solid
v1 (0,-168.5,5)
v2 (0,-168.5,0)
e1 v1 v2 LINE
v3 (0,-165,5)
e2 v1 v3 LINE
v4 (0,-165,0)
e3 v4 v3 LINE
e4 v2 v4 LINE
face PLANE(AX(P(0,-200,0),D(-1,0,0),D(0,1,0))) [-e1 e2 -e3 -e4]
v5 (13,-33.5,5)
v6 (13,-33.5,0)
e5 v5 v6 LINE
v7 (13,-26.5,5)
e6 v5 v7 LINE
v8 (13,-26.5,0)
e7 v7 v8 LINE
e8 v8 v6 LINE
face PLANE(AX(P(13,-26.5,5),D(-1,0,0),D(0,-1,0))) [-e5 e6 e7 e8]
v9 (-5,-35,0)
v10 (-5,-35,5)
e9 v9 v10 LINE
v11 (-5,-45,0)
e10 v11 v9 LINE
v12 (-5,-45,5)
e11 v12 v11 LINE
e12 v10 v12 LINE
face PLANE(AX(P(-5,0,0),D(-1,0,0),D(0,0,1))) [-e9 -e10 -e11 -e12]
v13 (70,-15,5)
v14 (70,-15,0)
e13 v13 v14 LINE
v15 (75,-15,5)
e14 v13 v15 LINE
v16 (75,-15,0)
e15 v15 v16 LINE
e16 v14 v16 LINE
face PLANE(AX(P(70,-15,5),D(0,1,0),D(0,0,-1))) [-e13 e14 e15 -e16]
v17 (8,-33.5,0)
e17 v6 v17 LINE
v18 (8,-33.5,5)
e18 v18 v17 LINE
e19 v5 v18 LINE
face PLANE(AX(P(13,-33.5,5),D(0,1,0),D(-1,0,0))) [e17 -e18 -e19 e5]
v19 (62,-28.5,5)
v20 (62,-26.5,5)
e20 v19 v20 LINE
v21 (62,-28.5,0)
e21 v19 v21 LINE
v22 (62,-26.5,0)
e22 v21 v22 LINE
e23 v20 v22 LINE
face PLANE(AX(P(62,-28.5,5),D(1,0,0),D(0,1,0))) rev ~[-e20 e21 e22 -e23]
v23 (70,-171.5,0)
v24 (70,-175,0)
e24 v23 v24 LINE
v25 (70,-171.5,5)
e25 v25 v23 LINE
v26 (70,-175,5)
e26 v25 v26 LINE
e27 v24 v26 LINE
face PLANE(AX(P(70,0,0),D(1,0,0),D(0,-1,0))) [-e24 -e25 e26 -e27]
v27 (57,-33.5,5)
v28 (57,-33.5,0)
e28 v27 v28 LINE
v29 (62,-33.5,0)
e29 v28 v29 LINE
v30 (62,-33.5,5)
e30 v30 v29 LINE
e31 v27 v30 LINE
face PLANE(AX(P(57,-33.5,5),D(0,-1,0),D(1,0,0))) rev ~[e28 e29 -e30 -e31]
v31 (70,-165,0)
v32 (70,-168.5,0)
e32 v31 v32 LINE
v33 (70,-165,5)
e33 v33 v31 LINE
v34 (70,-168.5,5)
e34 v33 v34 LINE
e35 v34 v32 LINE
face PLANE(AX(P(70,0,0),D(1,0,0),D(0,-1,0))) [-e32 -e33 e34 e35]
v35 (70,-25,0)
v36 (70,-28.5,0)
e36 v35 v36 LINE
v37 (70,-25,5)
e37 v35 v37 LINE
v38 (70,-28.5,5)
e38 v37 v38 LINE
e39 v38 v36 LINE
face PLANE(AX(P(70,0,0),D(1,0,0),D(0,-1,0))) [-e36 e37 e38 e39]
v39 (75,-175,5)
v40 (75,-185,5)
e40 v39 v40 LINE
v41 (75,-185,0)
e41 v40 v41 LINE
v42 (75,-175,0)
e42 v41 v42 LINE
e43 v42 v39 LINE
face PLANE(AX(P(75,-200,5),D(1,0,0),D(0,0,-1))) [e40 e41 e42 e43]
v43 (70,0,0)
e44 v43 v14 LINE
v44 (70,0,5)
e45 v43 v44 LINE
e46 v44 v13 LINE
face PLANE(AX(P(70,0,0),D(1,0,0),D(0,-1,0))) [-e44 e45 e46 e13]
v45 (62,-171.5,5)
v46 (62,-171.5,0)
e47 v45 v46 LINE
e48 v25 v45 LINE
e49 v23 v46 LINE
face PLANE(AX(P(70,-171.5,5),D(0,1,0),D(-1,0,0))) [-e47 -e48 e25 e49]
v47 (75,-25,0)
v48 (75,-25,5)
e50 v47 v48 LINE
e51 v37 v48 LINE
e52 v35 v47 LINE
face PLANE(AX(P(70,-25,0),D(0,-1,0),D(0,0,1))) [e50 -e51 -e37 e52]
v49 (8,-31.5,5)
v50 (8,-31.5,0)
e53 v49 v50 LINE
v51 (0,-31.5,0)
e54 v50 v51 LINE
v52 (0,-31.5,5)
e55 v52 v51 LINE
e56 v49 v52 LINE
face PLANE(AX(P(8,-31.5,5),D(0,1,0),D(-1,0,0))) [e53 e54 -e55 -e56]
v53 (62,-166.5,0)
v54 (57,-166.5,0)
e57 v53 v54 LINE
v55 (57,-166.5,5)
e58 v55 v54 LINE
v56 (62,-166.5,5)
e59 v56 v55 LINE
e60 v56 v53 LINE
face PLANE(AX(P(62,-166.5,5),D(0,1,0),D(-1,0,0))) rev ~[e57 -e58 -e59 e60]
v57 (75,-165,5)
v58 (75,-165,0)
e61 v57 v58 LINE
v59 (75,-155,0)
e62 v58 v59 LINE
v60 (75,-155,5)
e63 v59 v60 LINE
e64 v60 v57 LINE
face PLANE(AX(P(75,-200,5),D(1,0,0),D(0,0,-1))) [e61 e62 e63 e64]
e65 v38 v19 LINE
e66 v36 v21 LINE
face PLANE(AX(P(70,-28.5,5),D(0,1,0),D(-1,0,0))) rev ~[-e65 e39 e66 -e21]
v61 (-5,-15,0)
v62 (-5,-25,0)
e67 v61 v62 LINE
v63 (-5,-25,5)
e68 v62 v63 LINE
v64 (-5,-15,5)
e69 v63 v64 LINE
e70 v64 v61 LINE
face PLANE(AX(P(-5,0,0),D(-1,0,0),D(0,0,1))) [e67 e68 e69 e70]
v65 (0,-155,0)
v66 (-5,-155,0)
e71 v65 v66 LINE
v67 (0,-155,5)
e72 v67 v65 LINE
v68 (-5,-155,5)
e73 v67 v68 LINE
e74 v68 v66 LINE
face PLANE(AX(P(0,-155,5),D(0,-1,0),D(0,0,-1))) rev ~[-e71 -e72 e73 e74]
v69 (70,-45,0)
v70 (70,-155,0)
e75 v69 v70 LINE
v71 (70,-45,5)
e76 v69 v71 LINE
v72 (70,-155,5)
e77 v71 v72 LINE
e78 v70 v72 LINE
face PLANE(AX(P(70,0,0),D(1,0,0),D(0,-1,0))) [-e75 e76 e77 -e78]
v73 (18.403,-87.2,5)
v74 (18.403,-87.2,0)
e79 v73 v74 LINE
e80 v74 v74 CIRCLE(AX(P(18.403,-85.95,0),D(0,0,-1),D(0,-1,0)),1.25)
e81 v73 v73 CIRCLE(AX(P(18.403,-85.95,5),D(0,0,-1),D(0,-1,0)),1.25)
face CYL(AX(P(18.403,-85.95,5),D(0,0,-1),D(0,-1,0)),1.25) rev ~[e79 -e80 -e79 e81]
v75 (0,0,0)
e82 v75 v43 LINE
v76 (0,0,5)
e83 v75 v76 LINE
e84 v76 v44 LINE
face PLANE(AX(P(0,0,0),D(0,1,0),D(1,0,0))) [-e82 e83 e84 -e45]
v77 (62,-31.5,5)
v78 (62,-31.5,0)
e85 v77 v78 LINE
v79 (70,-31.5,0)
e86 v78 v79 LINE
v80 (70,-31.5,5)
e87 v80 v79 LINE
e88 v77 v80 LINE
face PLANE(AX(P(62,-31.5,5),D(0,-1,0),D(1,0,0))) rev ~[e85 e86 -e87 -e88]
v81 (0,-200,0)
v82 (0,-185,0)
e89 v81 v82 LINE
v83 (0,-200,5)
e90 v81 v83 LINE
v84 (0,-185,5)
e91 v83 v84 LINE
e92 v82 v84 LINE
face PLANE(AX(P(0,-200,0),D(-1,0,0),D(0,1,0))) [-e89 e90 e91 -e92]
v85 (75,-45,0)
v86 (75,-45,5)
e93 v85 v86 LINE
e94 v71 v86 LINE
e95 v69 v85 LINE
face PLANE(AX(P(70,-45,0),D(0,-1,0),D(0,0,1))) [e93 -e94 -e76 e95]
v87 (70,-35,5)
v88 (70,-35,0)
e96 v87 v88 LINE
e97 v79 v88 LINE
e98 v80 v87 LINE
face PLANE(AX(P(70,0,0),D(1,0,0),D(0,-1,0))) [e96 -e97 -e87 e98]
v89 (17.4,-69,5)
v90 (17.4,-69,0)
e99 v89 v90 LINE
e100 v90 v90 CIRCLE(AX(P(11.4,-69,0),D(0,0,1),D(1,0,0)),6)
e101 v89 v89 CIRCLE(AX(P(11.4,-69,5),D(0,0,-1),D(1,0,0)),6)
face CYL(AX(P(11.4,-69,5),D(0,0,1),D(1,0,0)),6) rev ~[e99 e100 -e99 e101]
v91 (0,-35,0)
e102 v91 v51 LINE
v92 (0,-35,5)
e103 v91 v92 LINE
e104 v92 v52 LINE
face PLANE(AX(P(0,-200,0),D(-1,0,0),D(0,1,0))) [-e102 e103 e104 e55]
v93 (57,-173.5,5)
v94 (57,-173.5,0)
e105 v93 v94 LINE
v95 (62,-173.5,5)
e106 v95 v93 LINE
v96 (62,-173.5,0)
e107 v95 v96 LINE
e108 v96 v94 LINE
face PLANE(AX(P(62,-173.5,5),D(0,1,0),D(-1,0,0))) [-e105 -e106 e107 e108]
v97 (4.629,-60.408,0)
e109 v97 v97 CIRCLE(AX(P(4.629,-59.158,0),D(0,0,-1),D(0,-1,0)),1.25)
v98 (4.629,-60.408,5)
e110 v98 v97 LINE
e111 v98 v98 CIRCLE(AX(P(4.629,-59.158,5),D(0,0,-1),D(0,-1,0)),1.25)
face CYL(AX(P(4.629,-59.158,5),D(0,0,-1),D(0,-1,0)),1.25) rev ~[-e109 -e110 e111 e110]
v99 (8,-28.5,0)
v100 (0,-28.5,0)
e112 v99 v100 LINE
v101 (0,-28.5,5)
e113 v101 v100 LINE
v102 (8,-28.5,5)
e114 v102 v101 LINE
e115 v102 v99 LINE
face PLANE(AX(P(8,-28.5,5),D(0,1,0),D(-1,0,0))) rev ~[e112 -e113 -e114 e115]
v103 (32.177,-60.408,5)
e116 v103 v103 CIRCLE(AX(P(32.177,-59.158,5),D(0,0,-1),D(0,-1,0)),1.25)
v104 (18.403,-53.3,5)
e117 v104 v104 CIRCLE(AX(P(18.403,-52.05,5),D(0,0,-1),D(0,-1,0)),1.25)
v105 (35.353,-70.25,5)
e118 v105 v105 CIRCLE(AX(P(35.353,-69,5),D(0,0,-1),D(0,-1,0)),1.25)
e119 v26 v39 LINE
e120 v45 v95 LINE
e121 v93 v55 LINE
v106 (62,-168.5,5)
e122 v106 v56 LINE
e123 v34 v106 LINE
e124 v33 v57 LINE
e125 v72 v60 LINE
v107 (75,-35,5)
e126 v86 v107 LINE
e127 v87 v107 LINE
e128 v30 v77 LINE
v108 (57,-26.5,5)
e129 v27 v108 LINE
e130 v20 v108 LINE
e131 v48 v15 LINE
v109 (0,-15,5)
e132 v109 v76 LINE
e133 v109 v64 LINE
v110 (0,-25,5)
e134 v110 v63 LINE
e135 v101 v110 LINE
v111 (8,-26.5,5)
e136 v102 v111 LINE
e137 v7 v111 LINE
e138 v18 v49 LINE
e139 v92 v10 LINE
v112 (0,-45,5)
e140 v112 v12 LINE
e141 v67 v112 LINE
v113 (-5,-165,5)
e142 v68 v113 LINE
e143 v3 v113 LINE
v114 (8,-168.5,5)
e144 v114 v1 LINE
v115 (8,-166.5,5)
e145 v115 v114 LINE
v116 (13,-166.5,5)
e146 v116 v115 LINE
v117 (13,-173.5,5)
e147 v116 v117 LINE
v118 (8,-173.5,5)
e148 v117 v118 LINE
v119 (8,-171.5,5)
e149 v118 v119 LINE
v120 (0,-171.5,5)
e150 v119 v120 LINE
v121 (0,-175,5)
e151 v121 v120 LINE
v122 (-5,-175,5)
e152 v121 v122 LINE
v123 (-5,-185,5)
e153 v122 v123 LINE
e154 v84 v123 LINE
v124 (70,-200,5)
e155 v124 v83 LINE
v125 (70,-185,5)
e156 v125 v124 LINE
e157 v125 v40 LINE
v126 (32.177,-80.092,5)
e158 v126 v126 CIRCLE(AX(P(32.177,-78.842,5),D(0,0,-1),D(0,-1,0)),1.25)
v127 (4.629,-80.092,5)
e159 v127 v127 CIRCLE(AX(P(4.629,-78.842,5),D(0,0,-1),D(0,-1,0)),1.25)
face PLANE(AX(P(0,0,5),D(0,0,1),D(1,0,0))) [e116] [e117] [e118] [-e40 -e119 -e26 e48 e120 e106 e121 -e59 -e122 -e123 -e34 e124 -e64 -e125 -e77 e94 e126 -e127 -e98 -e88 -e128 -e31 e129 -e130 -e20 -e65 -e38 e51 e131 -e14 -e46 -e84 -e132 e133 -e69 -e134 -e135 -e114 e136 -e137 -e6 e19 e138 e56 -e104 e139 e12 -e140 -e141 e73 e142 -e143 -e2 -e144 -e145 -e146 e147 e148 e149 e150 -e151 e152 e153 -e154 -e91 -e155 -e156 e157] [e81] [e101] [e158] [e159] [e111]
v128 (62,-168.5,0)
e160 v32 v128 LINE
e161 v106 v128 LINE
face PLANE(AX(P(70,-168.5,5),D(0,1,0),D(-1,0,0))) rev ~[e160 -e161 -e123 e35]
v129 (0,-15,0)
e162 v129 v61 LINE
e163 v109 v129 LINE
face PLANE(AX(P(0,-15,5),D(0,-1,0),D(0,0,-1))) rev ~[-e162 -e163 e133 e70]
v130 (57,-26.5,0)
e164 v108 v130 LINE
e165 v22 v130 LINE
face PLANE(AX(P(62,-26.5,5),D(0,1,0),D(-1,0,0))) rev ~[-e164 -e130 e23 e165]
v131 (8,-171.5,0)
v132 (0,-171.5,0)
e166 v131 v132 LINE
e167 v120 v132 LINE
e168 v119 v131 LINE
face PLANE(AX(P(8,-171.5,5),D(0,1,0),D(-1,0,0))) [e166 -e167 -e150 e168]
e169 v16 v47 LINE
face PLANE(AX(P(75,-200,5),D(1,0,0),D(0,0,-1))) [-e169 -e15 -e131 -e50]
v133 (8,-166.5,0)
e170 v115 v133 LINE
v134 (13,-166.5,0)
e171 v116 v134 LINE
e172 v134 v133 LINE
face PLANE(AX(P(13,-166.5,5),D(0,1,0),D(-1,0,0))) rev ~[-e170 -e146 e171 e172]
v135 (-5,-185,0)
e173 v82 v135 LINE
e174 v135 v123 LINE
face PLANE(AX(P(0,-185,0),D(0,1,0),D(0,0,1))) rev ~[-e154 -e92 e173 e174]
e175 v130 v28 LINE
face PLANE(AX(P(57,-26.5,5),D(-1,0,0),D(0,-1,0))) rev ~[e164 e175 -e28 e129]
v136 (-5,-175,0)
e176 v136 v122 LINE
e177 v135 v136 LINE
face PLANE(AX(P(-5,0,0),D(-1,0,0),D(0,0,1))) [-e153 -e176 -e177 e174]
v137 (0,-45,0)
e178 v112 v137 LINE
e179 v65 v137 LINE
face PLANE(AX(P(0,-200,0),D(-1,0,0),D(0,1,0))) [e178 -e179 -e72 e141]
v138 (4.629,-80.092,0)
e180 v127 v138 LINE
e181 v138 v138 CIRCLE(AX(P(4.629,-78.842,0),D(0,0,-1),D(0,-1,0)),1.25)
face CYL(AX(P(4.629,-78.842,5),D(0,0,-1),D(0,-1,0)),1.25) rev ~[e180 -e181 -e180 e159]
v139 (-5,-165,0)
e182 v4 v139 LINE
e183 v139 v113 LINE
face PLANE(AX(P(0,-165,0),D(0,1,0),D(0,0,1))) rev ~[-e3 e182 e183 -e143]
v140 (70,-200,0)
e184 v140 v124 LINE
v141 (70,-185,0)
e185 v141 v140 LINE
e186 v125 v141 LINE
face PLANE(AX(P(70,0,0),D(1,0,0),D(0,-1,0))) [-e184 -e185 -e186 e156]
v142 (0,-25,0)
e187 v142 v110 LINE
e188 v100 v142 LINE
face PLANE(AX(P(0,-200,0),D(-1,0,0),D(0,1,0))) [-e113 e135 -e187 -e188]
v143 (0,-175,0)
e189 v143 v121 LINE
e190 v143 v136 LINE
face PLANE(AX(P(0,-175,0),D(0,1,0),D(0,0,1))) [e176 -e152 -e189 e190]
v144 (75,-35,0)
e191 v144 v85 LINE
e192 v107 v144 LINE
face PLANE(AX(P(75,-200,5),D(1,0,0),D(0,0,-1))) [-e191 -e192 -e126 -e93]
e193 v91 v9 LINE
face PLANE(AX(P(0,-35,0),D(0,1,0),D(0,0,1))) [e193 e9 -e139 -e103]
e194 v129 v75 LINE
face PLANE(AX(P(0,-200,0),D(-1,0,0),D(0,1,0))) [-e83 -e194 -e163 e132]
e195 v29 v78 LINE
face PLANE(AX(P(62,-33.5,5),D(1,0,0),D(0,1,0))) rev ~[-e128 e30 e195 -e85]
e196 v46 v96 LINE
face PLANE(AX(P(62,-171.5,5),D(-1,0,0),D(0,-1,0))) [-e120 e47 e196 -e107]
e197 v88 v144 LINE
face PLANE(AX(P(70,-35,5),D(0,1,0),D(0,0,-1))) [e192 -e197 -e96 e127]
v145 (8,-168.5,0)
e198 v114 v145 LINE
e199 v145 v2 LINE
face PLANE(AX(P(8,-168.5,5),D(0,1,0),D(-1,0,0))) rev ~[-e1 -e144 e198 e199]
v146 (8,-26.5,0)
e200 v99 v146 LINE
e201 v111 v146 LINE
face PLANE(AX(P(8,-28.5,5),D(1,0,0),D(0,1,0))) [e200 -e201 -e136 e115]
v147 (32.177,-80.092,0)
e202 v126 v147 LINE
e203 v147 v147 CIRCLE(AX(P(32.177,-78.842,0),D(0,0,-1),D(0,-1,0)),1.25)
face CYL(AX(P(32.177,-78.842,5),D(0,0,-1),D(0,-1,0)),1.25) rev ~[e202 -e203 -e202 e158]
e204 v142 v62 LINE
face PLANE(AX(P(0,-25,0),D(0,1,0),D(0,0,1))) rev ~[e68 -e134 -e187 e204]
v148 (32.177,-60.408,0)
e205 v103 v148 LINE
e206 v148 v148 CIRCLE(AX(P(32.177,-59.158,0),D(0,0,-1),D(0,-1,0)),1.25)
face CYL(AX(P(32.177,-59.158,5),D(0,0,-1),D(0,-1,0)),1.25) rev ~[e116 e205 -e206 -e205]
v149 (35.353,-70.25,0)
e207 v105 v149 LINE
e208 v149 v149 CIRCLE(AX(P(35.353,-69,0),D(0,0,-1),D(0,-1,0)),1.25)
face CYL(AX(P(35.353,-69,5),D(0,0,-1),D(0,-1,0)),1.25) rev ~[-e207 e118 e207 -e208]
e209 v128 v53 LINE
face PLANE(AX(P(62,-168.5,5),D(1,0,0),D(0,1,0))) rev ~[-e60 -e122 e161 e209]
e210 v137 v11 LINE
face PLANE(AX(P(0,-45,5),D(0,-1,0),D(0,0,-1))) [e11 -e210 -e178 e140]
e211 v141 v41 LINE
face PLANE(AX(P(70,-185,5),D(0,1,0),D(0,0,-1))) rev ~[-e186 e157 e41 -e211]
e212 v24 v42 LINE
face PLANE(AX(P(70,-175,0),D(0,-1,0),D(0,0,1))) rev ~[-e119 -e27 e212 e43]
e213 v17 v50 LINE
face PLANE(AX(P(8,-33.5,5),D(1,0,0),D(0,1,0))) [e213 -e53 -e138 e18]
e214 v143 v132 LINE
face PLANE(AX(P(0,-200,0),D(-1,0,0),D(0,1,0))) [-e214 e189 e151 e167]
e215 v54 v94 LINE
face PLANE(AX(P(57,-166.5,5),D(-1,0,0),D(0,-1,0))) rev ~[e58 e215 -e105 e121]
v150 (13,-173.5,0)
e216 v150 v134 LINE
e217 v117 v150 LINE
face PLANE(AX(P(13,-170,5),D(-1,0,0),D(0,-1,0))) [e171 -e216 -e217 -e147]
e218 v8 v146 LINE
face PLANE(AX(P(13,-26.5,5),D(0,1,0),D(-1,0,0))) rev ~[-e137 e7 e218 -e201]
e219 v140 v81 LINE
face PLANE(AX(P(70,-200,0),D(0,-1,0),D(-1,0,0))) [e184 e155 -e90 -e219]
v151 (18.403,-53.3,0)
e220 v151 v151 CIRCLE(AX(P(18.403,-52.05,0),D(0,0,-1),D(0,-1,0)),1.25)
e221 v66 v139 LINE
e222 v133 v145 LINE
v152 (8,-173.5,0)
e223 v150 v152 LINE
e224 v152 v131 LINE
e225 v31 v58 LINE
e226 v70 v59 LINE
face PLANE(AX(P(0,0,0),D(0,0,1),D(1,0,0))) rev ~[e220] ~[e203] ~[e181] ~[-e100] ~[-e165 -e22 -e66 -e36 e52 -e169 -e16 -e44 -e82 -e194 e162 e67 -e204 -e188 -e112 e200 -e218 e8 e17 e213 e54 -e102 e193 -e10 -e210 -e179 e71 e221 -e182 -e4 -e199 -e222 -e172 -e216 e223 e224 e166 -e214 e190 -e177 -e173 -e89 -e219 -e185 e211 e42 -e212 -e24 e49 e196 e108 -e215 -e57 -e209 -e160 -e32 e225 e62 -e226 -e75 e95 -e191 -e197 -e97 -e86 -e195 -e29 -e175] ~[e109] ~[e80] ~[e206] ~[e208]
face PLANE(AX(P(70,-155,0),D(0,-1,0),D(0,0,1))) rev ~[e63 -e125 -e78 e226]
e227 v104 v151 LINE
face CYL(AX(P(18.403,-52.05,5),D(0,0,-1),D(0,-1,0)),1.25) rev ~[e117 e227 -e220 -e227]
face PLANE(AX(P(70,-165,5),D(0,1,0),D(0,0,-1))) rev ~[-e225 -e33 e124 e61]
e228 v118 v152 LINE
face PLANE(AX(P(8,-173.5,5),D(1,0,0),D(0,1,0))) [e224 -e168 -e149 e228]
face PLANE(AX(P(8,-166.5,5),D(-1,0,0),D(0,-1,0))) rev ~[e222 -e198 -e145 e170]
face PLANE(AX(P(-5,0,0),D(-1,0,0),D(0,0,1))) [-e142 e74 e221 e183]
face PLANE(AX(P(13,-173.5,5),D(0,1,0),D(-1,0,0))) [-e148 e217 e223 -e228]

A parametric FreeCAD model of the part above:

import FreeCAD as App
import Part
import Sketcher
from FreeCAD import Vector

doc = App.newDocument("Part")
body = doc.addObject("PartDesign::Body", "Body")

# Sketch on XY plane
sketch1 = body.newObject("Sketcher::SketchObject", "Sketch")
sketch1.AttachmentSupport = (doc.getObject("XY_Plane"), [""])
sketch1.MapMode = "FlatFace"
sketch1.addGeometry([
    Part.LineSegment(Vector(70, 0, 0), Vector(0, 0, 0)),
    Part.LineSegment(Vector(0, 0, 0), Vector(0, -200, 0)),
    Part.LineSegment(Vector(0, -200, 0), Vector(70, -200, 0)),
    Part.LineSegment(Vector(70, -200, 0), Vector(70, 0, 0)),
], False)
sketch1.addConstraint([
    Sketcher.Constraint("Coincident", 0, 2, 1, 1),
    Sketcher.Constraint("Coincident", 1, 2, 2, 1),
    Sketcher.Constraint("Coincident", 2, 2, 3, 1),
    Sketcher.Constraint("Coincident", 3, 2, 0, 1),
    Sketcher.Constraint("Horizontal", 0),
    Sketcher.Constraint("Vertical", 1),
    Sketcher.Constraint("Horizontal", 2),
    Sketcher.Constraint("Vertical", 3),
    Sketcher.Constraint("Coincident", 0, 2, -1, 1),
    Sketcher.Constraint("DistanceX", 0, 2, 0, 1, 70.0),
    Sketcher.Constraint("DistanceY", 1, 2, 1, 1, 200.0),
])
pad1 = body.newObject("PartDesign::Pad", "Pad")
pad1.Profile = sketch1
pad1.Length = 5

# Sketch on XY plane
sketch2 = body.newObject("Sketcher::SketchObject", "Sketch001")
sketch2.AttachmentSupport = (doc.getObject("XY_Plane"), [""])
sketch2.MapMode = "FlatFace"
sketch2.AttachmentOffset = App.Placement(Vector(0, 0, 5), App.Rotation())
sketch2.addGeometry([
    Part.LineSegment(Vector(13, -170, 0), Vector(0, -170, 0)),  # 0
    Part.LineSegment(Vector(0, -170, 0), Vector(0, -171.5, 0)),  # 1
    Part.LineSegment(Vector(0, -171.5, 0), Vector(8, -171.5, 0)),  # 2
    Part.LineSegment(Vector(8, -171.5, 0), Vector(8, -173.5, 0)),  # 3
    Part.LineSegment(Vector(8, -173.5, 0), Vector(13, -173.5, 0)),  # 4
    Part.LineSegment(Vector(13, -173.5, 0), Vector(13, -170, 0)),  # 5
], False)
sketch2.addConstraint([
    Sketcher.Constraint("Coincident", 0, 2, 1, 1),
    Sketcher.Constraint("Coincident", 1, 2, 2, 1),
    Sketcher.Constraint("Coincident", 2, 2, 3, 1),
    Sketcher.Constraint("Coincident", 3, 2, 4, 1),
    Sketcher.Constraint("Coincident", 4, 2, 5, 1),
    Sketcher.Constraint("Coincident", 5, 2, 0, 1),
    Sketcher.Constraint("Horizontal", 0),
    Sketcher.Constraint("Vertical", 1),
    Sketcher.Constraint("Horizontal", 2),
    Sketcher.Constraint("Vertical", 3),
    Sketcher.Constraint("Horizontal", 4),
    Sketcher.Constraint("Vertical", 5),
    Sketcher.Constraint("PointOnObject", 0, 2, -2),
    Sketcher.Constraint("DistanceX", 2, 1, 2, 2, 8.0),
    Sketcher.Constraint("DistanceX", 4, 1, 4, 2, 5.0),
    Sketcher.Constraint("DistanceY", 3, 2, 3, 1, 2.0),
    Sketcher.Constraint("DistanceY", 1, 2, 1, 1, 1.5),
    Sketcher.Constraint("DistanceY", 0, 2, -1, 1, 170.0),
])
pocket1 = body.newObject("PartDesign::Pocket", "Pocket")
pocket1.Profile = sketch2
pocket1.Length = 5

# Sketch on XY plane
sketch3 = body.newObject("Sketcher::SketchObject", "Sketch002")
sketch3.AttachmentSupport = (doc.getObject("XY_Plane"), [""])
sketch3.MapMode = "FlatFace"
sketch3.AttachmentOffset = App.Placement(Vector(0, 0, 5), App.Rotation())
sketch3.addGeometry([
    Part.LineSegment(Vector(8, -168.5, 0), Vector(0, -168.5, 0)),  # 0
    Part.LineSegment(Vector(0, -168.5, 0), Vector(0, -170, 0)),  # 1
    Part.LineSegment(Vector(0, -170, 0), Vector(13, -170, 0)),  # 2
    Part.LineSegment(Vector(13, -170, 0), Vector(13, -166.5, 0)),  # 3
    Part.LineSegment(Vector(13, -166.5, 0), Vector(8, -166.5, 0)),  # 4
    Part.LineSegment(Vector(8, -166.5, 0), Vector(8, -168.5, 0)),  # 5
], False)
sketch3.addConstraint([
    Sketcher.Constraint("Coincident", 0, 2, 1, 1),
    Sketcher.Constraint("Coincident", 1, 2, 2, 1),
    Sketcher.Constraint("Coincident", 2, 2, 3, 1),
    Sketcher.Constraint("Coincident", 3, 2, 4, 1),
    Sketcher.Constraint("Coincident", 4, 2, 5, 1),
    Sketcher.Constraint("Coincident", 5, 2, 0, 1),
    Sketcher.Constraint("Horizontal", 0),
    Sketcher.Constraint("Vertical", 1),
    Sketcher.Constraint("Horizontal", 2),
    Sketcher.Constraint("Vertical", 3),
    Sketcher.Constraint("Horizontal", 4),
    Sketcher.Constraint("Vertical", 5),
    Sketcher.Constraint("PointOnObject", 0, 2, -2),
    Sketcher.Constraint("DistanceX", 0, 2, 0, 1, 8.0),
    Sketcher.Constraint("DistanceX", 4, 2, 4, 1, 5.0),
    Sketcher.Constraint("DistanceY", 5, 2, 5, 1, 2.0),
    Sketcher.Constraint("DistanceY", 1, 2, 1, 1, 1.5),
    Sketcher.Constraint("DistanceY", 1, 2, -1, 1, 170.0),
])
pocket2 = body.newObject("PartDesign::Pocket", "Pocket001")
pocket2.Profile = sketch3
pocket2.Length = 5

# Sketch on XY plane
sketch4 = body.newObject("Sketcher::SketchObject", "Sketch003")
sketch4.AttachmentSupport = (doc.getObject("XY_Plane"), [""])
sketch4.MapMode = "FlatFace"
sketch4.AttachmentOffset = App.Placement(Vector(0, 0, 5), App.Rotation())
sketch4.addGeometry([
    Part.LineSegment(Vector(70, -170, 0), Vector(57, -170, 0)),  # 0
    Part.LineSegment(Vector(57, -170, 0), Vector(57, -173.5, 0)),  # 1
    Part.LineSegment(Vector(57, -173.5, 0), Vector(62, -173.5, 0)),  # 2
    Part.LineSegment(Vector(62, -173.5, 0), Vector(62, -171.5, 0)),  # 3
    Part.LineSegment(Vector(62, -171.5, 0), Vector(70, -171.5, 0)),  # 4
    Part.LineSegment(Vector(70, -171.5, 0), Vector(70, -170, 0)),  # 5
], False)
sketch4.addConstraint([
    Sketcher.Constraint("Coincident", 0, 2, 1, 1),
    Sketcher.Constraint("Coincident", 1, 2, 2, 1),
    Sketcher.Constraint("Coincident", 2, 2, 3, 1),
    Sketcher.Constraint("Coincident", 3, 2, 4, 1),
    Sketcher.Constraint("Coincident", 4, 2, 5, 1),
    Sketcher.Constraint("Coincident", 5, 2, 0, 1),
    Sketcher.Constraint("Horizontal", 0),
    Sketcher.Constraint("Vertical", 1),
    Sketcher.Constraint("Horizontal", 2),
    Sketcher.Constraint("Vertical", 3),
    Sketcher.Constraint("Horizontal", 4),
    Sketcher.Constraint("Vertical", 5),
    Sketcher.Constraint("DistanceX", 2, 1, 2, 2, 5.0),
    Sketcher.Constraint("DistanceX", 4, 1, 4, 2, 8.0),
    Sketcher.Constraint("DistanceY", 3, 1, 3, 2, 2.0),
    Sketcher.Constraint("DistanceY", 1, 2, 1, 1, 3.5),
    Sketcher.Constraint("DistanceX", -1, 1, 0, 2, 57.0),
    Sketcher.Constraint("DistanceY", 0, 2, -1, 1, 170.0),
])
pocket3 = body.newObject("PartDesign::Pocket", "Pocket002")
pocket3.Profile = sketch4
pocket3.Length = 5

# Sketch on XY plane
sketch5 = body.newObject("Sketcher::SketchObject", "Sketch004")
sketch5.AttachmentSupport = (doc.getObject("XY_Plane"), [""])
sketch5.MapMode = "FlatFace"
sketch5.AttachmentOffset = App.Placement(Vector(0, 0, 5), App.Rotation())
sketch5.addGeometry([
    Part.LineSegment(Vector(57, -166.5, 0), Vector(57, -170, 0)),  # 0
    Part.LineSegment(Vector(57, -170, 0), Vector(70, -170, 0)),  # 1
    Part.LineSegment(Vector(70, -170, 0), Vector(70, -168.5, 0)),  # 2
    Part.LineSegment(Vector(70, -168.5, 0), Vector(62, -168.5, 0)),  # 3
    Part.LineSegment(Vector(62, -168.5, 0), Vector(62, -166.5, 0)),  # 4
    Part.LineSegment(Vector(62, -166.5, 0), Vector(57, -166.5, 0)),  # 5
], False)
sketch5.addConstraint([
    Sketcher.Constraint("Coincident", 0, 2, 1, 1),
    Sketcher.Constraint("Coincident", 1, 2, 2, 1),
    Sketcher.Constraint("Coincident", 2, 2, 3, 1),
    Sketcher.Constraint("Coincident", 3, 2, 4, 1),
    Sketcher.Constraint("Coincident", 4, 2, 5, 1),
    Sketcher.Constraint("Coincident", 5, 2, 0, 1),
    Sketcher.Constraint("Vertical", 0),
    Sketcher.Constraint("Horizontal", 1),
    Sketcher.Constraint("Vertical", 2),
    Sketcher.Constraint("Horizontal", 3),
    Sketcher.Constraint("Vertical", 4),
    Sketcher.Constraint("Horizontal", 5),
    Sketcher.Constraint("DistanceX", 3, 2, 3, 1, 8.0),
    Sketcher.Constraint("DistanceX", 5, 2, 5, 1, 5.0),
    Sketcher.Constraint("DistanceY", 4, 1, 4, 2, 2.0),
    Sketcher.Constraint("DistanceY", 0, 2, 0, 1, 3.5),
    Sketcher.Constraint("DistanceX", -1, 1, 0, 2, 57.0),
    Sketcher.Constraint("DistanceY", 0, 2, -1, 1, 170.0),
])
pocket4 = body.newObject("PartDesign::Pocket", "Pocket003")
pocket4.Profile = sketch5
pocket4.Length = 5

# Sketch on XY plane
sketch6 = body.newObject("Sketcher::SketchObject", "Sketch005")
sketch6.AttachmentSupport = (doc.getObject("XY_Plane"), [""])
sketch6.MapMode = "FlatFace"
sketch6.AttachmentOffset = App.Placement(Vector(0, 0, 5), App.Rotation())
sketch6.addGeometry(Part.Circle(Vector(11.4, -69, 0), Vector(0, 0, 1), 6), False)
sketch6.addConstraint([
    Sketcher.Constraint("Diameter", 0, 12.0),
    Sketcher.Constraint("DistanceY", 0, 3, -1, 1, 69.0),
    Sketcher.Constraint("DistanceX", -1, 1, 0, 3, 11.4),
])
pocket5 = body.newObject("PartDesign::Pocket", "Pocket004")
pocket5.Profile = sketch6
pocket5.Length = 5

# Sketch on XY plane
sketch7 = body.newObject("Sketcher::SketchObject", "Sketch006")
sketch7.AttachmentSupport = (doc.getObject("XY_Plane"), [""])
sketch7.MapMode = "FlatFace"
sketch7.AttachmentOffset = App.Placement(Vector(0, 0, 5), App.Rotation())
sketch7.addGeometry(Part.Circle(Vector(18.403, -85.95, 0), Vector(0, 0, 1), 1.25), False)
sketch7.addConstraint([
    Sketcher.Constraint("Diameter", 0, 2.5),
    Sketcher.Constraint("DistanceY", 0, 3, -1, 1, 85.95),
    Sketcher.Constraint("DistanceX", -1, 1, 0, 3, 18.403),
])
doc.recompute()
hole = body.newObject("PartDesign::Hole", "Hole")
hole.Profile = sketch7
hole.ThreadType = "None"
hole.Diameter = 2.5
hole.DepthType = "ThroughAll"

# Sketch on XY plane
sketch8 = body.newObject("Sketcher::SketchObject", "Sketch007")
sketch8.AttachmentSupport = (doc.getObject("XY_Plane"), [""])
sketch8.MapMode = "FlatFace"
sketch8.AttachmentOffset = App.Placement(Vector(0, 0, 5), App.Rotation())
sketch8.addGeometry([
    Part.Circle(Vector(4.629, -78.842, 0), Vector(0, 0, 1), 1.25),
    Part.Circle(Vector(4.629, -59.158, 0), Vector(0, 0, 1), 1.25),
    Part.Circle(Vector(4.629, -78.842, 0), Vector(0, 0, 1), 1.25),
], False)
sketch8.addConstraint([
    Sketcher.Constraint("Coincident", 2, 3, 0, 3),
    Sketcher.Constraint("Equal", 0, 1),
    Sketcher.Constraint("Equal", 1, 2),
    Sketcher.Constraint("Vertical", 0, 3, 1, 3),
    Sketcher.Constraint("Diameter", 0, 2.5),
    Sketcher.Constraint("DistanceX", -1, 1, 0, 3, 4.629),
    Sketcher.Constraint("DistanceY", 0, 3, -1, 1, 78.842),
    Sketcher.Constraint("DistanceY", 1, 3, -1, 1, 59.158),
])
doc.recompute()
hole2 = body.newObject("PartDesign::Hole", "Hole001")
hole2.Profile = sketch8
hole2.ThreadType = "None"
hole2.Diameter = 2.5
hole2.DepthType = "ThroughAll"

# Sketch on XY plane
sketch9 = body.newObject("Sketcher::SketchObject", "Sketch008")
sketch9.AttachmentSupport = (doc.getObject("XY_Plane"), [""])
sketch9.MapMode = "FlatFace"
sketch9.AttachmentOffset = App.Placement(Vector(0, 0, 5), App.Rotation())
sketch9.addGeometry(Part.Circle(Vector(18.403, -52.05, 0), Vector(0, 0, 1), 1.25), False)
sketch9.addConstraint([
    Sketcher.Constraint("Diameter", 0, 2.5),
    Sketcher.Constraint("DistanceY", 0, 3, -1, 1, 52.05),
    Sketcher.Constraint("DistanceX", -1, 1, 0, 3, 18.403),
])
doc.recompute()
hole3 = body.newObject("PartDesign::Hole", "Hole002")
hole3.Profile = sketch9
hole3.ThreadType = "None"
hole3.Diameter = 2.5
hole3.DepthType = "ThroughAll"

# Sketch on XY plane
sketch10 = body.newObject("Sketcher::SketchObject", "Sketch009")
sketch10.AttachmentSupport = (doc.getObject("XY_Plane"), [""])
sketch10.MapMode = "FlatFace"
sketch10.AttachmentOffset = App.Placement(Vector(0, 0, 5), App.Rotation())
sketch10.addGeometry(Part.Circle(Vector(32.177, -59.158, 0), Vector(0, 0, 1), 1.25), False)
sketch10.addConstraint([
    Sketcher.Constraint("Diameter", 0, 2.5),
    Sketcher.Constraint("DistanceX", -1, 1, 0, 3, 32.177),
    Sketcher.Constraint("DistanceY", 0, 3, -1, 1, 59.158),
])
doc.recompute()
hole4 = body.newObject("PartDesign::Hole", "Hole003")
hole4.Profile = sketch10
hole4.ThreadType = "None"
hole4.Diameter = 2.5
hole4.DepthType = "ThroughAll"

# Sketch on XY plane
sketch11 = body.newObject("Sketcher::SketchObject", "Sketch010")
sketch11.AttachmentSupport = (doc.getObject("XY_Plane"), [""])
sketch11.MapMode = "FlatFace"
sketch11.AttachmentOffset = App.Placement(Vector(0, 0, 5), App.Rotation())
sketch11.addGeometry(Part.Circle(Vector(35.353, -69, 0), Vector(0, 0, 1), 1.25), False)
sketch11.addConstraint([
    Sketcher.Constraint("Diameter", 0, 2.5),
    Sketcher.Constraint("DistanceY", 0, 3, -1, 1, 69.0),
    Sketcher.Constraint("DistanceX", -1, 1, 0, 3, 35.353),
])
doc.recompute()
hole5 = body.newObject("PartDesign::Hole", "Hole004")
hole5.Profile = sketch11
hole5.ThreadType = "None"
hole5.Diameter = 2.5
hole5.DepthType = "ThroughAll"

# Sketch on XY plane
sketch12 = body.newObject("Sketcher::SketchObject", "Sketch011")
sketch12.AttachmentSupport = (doc.getObject("XY_Plane"), [""])
sketch12.MapMode = "FlatFace"
sketch12.AttachmentOffset = App.Placement(Vector(0, 0, 5), App.Rotation())
sketch12.addGeometry(Part.Circle(Vector(32.177, -78.842, 0), Vector(0, 0, 1), 1.25), False)
sketch12.addConstraint([
    Sketcher.Constraint("Diameter", 0, 2.5),
    Sketcher.Constraint("DistanceX", -1, 1, 0, 3, 32.177),
    Sketcher.Constraint("DistanceY", 0, 3, -1, 1, 78.842),
])
doc.recompute()
hole6 = body.newObject("PartDesign::Hole", "Hole005")
hole6.Profile = sketch12
hole6.ThreadType = "None"
hole6.Diameter = 2.5
hole6.DepthType = "ThroughAll"

# Sketch on YZ plane
sketch13 = body.newObject("Sketcher::SketchObject", "Sketch012")
sketch13.AttachmentSupport = (doc.getObject("YZ_Plane"), [""])
sketch13.MapMode = "FlatFace"
sketch13.AttachmentOffset = App.Placement(Vector(0, 0, 70), App.Rotation())
sketch13.addGeometry([
    Part.LineSegment(Vector(-175, 5, 0), Vector(-185, 5, 0)),  # 0
    Part.LineSegment(Vector(-185, 5, 0), Vector(-185, 0, 0)),  # 1
    Part.LineSegment(Vector(-185, 0, 0), Vector(-175, 0, 0)),  # 2
    Part.LineSegment(Vector(-175, 0, 0), Vector(-175, 5, 0)),  # 3
    Part.LineSegment(Vector(-155, 5, 0), Vector(-165, 5, 0)),  # 4
    Part.LineSegment(Vector(-165, 5, 0), Vector(-165, 0, 0)),  # 5
    Part.LineSegment(Vector(-165, 0, 0), Vector(-155, 0, 0)),  # 6
    Part.LineSegment(Vector(-155, 0, 0), Vector(-155, 5, 0)),  # 7
    Part.LineSegment(Vector(-35, 0, 0), Vector(-35, 5, 0)),  # 8
    Part.LineSegment(Vector(-35, 5, 0), Vector(-45, 5, 0)),  # 9
    Part.LineSegment(Vector(-45, 5, 0), Vector(-45, 0, 0)),  # 10
    Part.LineSegment(Vector(-45, 0, 0), Vector(-35, 0, 0)),  # 11
    Part.LineSegment(Vector(-15, 0, 0), Vector(-15, 5, 0)),  # 12
    Part.LineSegment(Vector(-15, 5, 0), Vector(-25, 5, 0)),  # 13
    Part.LineSegment(Vector(-25, 5, 0), Vector(-25, 0, 0)),  # 14
    Part.LineSegment(Vector(-25, 0, 0), Vector(-15, 0, 0)),  # 15
], False)
sketch13.addConstraint([
    Sketcher.Constraint("Coincident", 0, 2, 1, 1),
    Sketcher.Constraint("Coincident", 1, 2, 2, 1),
    Sketcher.Constraint("Coincident", 2, 2, 3, 1),
    Sketcher.Constraint("Coincident", 3, 2, 0, 1),
    Sketcher.Constraint("Coincident", 4, 2, 5, 1),
    Sketcher.Constraint("Coincident", 5, 2, 6, 1),
    Sketcher.Constraint("Coincident", 6, 2, 7, 1),
    Sketcher.Constraint("Coincident", 7, 2, 4, 1),
    Sketcher.Constraint("Coincident", 8, 2, 9, 1),
    Sketcher.Constraint("Coincident", 9, 2, 10, 1),
    Sketcher.Constraint("Coincident", 10, 2, 11, 1),
    Sketcher.Constraint("Coincident", 11, 2, 8, 1),
    Sketcher.Constraint("Coincident", 12, 2, 13, 1),
    Sketcher.Constraint("Coincident", 13, 2, 14, 1),
    Sketcher.Constraint("Coincident", 14, 2, 15, 1),
    Sketcher.Constraint("Coincident", 15, 2, 12, 1),
    Sketcher.Constraint("Horizontal", 0),
    Sketcher.Constraint("Vertical", 1),
    Sketcher.Constraint("Horizontal", 2),
    Sketcher.Constraint("Vertical", 3),
    Sketcher.Constraint("Horizontal", 4),
    Sketcher.Constraint("Vertical", 5),
    Sketcher.Constraint("Horizontal", 6),
    Sketcher.Constraint("Vertical", 7),
    Sketcher.Constraint("Vertical", 8),
    Sketcher.Constraint("Horizontal", 9),
    Sketcher.Constraint("Vertical", 10),
    Sketcher.Constraint("Horizontal", 11),
    Sketcher.Constraint("Vertical", 12),
    Sketcher.Constraint("Horizontal", 13),
    Sketcher.Constraint("Vertical", 14),
    Sketcher.Constraint("Horizontal", 15),
    Sketcher.Constraint("PointOnObject", 1, 2, -1),
    Sketcher.Constraint("PointOnObject", 5, 2, -1),
    Sketcher.Constraint("PointOnObject", 10, 2, -1),
    Sketcher.Constraint("PointOnObject", 14, 2, -1),
    Sketcher.Constraint("Horizontal", 3, 2, 4, 2),
    Sketcher.Constraint("Horizontal", 7, 2, 8, 2),
    Sketcher.Constraint("Horizontal", 9, 2, 12, 2),
    Sketcher.Constraint("Equal", 2, 4),
    Sketcher.Constraint("Equal", 6, 9),
    Sketcher.Constraint("Equal", 11, 13),
    Sketcher.Constraint("DistanceX", 0, 2, 0, 1, 10.0),
    Sketcher.Constraint("DistanceX", 12, 2, -1, 1, 15.0),
    Sketcher.Constraint("DistanceX", 3, 2, 4, 2, 10.0),
    Sketcher.Constraint("DistanceX", 7, 2, 9, 2, 110.0),
    Sketcher.Constraint("DistanceX", 8, 2, 13, 2, 10.0),
    Sketcher.Constraint("DistanceY", 1, 2, 1, 1, 5.0),
])
pad2 = body.newObject("PartDesign::Pad", "Pad001")
pad2.Profile = sketch13
pad2.Length = 5

# Sketch on YZ plane
sketch14 = body.newObject("Sketcher::SketchObject", "Sketch013")
sketch14.AttachmentSupport = (doc.getObject("YZ_Plane"), [""])
sketch14.MapMode = "FlatFace"
sketch14.addGeometry([
    Part.LineSegment(Vector(-15, 5, 0), Vector(-15, 0, 0)),  # 0
    Part.LineSegment(Vector(-15, 0, 0), Vector(-25, 0, 0)),  # 1
    Part.LineSegment(Vector(-25, 0, 0), Vector(-25, 5, 0)),  # 2
    Part.LineSegment(Vector(-25, 5, 0), Vector(-15, 5, 0)),  # 3
    Part.LineSegment(Vector(-165, 5, 0), Vector(-155, 5, 0)),  # 4
    Part.LineSegment(Vector(-155, 5, 0), Vector(-155, 0, 0)),  # 5
    Part.LineSegment(Vector(-155, 0, 0), Vector(-165, 0, 0)),  # 6
    Part.LineSegment(Vector(-165, 0, 0), Vector(-165, 5, 0)),  # 7
    Part.LineSegment(Vector(-35, 5, 0), Vector(-35, 0, 0)),  # 8
    Part.LineSegment(Vector(-35, 0, 0), Vector(-45, 0, 0)),  # 9
    Part.LineSegment(Vector(-45, 0, 0), Vector(-45, 5, 0)),  # 10
    Part.LineSegment(Vector(-45, 5, 0), Vector(-35, 5, 0)),  # 11
    Part.LineSegment(Vector(-185, 5, 0), Vector(-175, 5, 0)),  # 12
    Part.LineSegment(Vector(-175, 5, 0), Vector(-175, 0, 0)),  # 13
    Part.LineSegment(Vector(-175, 0, 0), Vector(-185, 0, 0)),  # 14
    Part.LineSegment(Vector(-185, 0, 0), Vector(-185, 5, 0)),  # 15
], False)
sketch14.addConstraint([
    Sketcher.Constraint("Coincident", 0, 2, 1, 1),
    Sketcher.Constraint("Coincident", 1, 2, 2, 1),
    Sketcher.Constraint("Coincident", 2, 2, 3, 1),
    Sketcher.Constraint("Coincident", 3, 2, 0, 1),
    Sketcher.Constraint("Coincident", 4, 2, 5, 1),
    Sketcher.Constraint("Coincident", 5, 2, 6, 1),
    Sketcher.Constraint("Coincident", 6, 2, 7, 1),
    Sketcher.Constraint("Coincident", 7, 2, 4, 1),
    Sketcher.Constraint("Coincident", 8, 2, 9, 1),
    Sketcher.Constraint("Coincident", 9, 2, 10, 1),
    Sketcher.Constraint("Coincident", 10, 2, 11, 1),
    Sketcher.Constraint("Coincident", 11, 2, 8, 1),
    Sketcher.Constraint("Coincident", 12, 2, 13, 1),
    Sketcher.Constraint("Coincident", 13, 2, 14, 1),
    Sketcher.Constraint("Coincident", 14, 2, 15, 1),
    Sketcher.Constraint("Coincident", 15, 2, 12, 1),
    Sketcher.Constraint("Vertical", 0),
    Sketcher.Constraint("Horizontal", 1),
    Sketcher.Constraint("Vertical", 2),
    Sketcher.Constraint("Horizontal", 3),
    Sketcher.Constraint("Horizontal", 4),
    Sketcher.Constraint("Vertical", 5),
    Sketcher.Constraint("Horizontal", 6),
    Sketcher.Constraint("Vertical", 7),
    Sketcher.Constraint("Vertical", 8),
    Sketcher.Constraint("Horizontal", 9),
    Sketcher.Constraint("Vertical", 10),
    Sketcher.Constraint("Horizontal", 11),
    Sketcher.Constraint("Horizontal", 12),
    Sketcher.Constraint("Vertical", 13),
    Sketcher.Constraint("Horizontal", 14),
    Sketcher.Constraint("Vertical", 15),
    Sketcher.Constraint("PointOnObject", 0, 2, -1),
    Sketcher.Constraint("PointOnObject", 5, 2, -1),
    Sketcher.Constraint("PointOnObject", 8, 2, -1),
    Sketcher.Constraint("PointOnObject", 13, 2, -1),
    Sketcher.Constraint("Horizontal", 3, 2, 4, 2),
    Sketcher.Constraint("Horizontal", 7, 2, 10, 2),
    Sketcher.Constraint("Horizontal", 11, 2, 12, 2),
    Sketcher.Constraint("Equal", 3, 4),
    Sketcher.Constraint("Equal", 6, 9),
    Sketcher.Constraint("Equal", 11, 12),
    Sketcher.Constraint("DistanceX", 1, 2, 1, 1, 10.0),
    Sketcher.Constraint("DistanceY", 0, 2, 0, 1, 5.0),
    Sketcher.Constraint("DistanceX", 8, 2, 1, 2, 10.0),
    Sketcher.Constraint("DistanceX", 12, 2, 7, 2, 10.0),
    Sketcher.Constraint("DistanceX", 0, 2, -1, 1, 15.0),
    Sketcher.Constraint("DistanceX", 4, 2, -1, 1, 155.0),
])
pad3 = body.newObject("PartDesign::Pad", "Pad002")
pad3.Profile = sketch14
pad3.Length = 5
pad3.Reversed = True

# Sketch on XY plane
sketch15 = body.newObject("Sketcher::SketchObject", "Sketch014")
sketch15.AttachmentSupport = (doc.getObject("XY_Plane"), [""])
sketch15.MapMode = "FlatFace"
sketch15.AttachmentOffset = App.Placement(Vector(0, 0, 5), App.Rotation())
sketch15.addGeometry([
    Part.LineSegment(Vector(8, -28.5, 0), Vector(0, -28.5, 0)),  # 0
    Part.LineSegment(Vector(0, -28.5, 0), Vector(0, -31.5, 0)),  # 1
    Part.LineSegment(Vector(0, -31.5, 0), Vector(8, -31.5, 0)),  # 2
    Part.LineSegment(Vector(8, -31.5, 0), Vector(8, -33.5, 0)),  # 3
    Part.LineSegment(Vector(8, -33.5, 0), Vector(13, -33.5, 0)),  # 4
    Part.LineSegment(Vector(13, -33.5, 0), Vector(13, -26.5, 0)),  # 5
    Part.LineSegment(Vector(13, -26.5, 0), Vector(8, -26.5, 0)),  # 6
    Part.LineSegment(Vector(8, -26.5, 0), Vector(8, -28.5, 0)),  # 7
    Part.LineSegment(Vector(57, -26.5, 0), Vector(57, -33.5, 0)),  # 8
    Part.LineSegment(Vector(57, -33.5, 0), Vector(62, -33.5, 0)),  # 9
    Part.LineSegment(Vector(62, -33.5, 0), Vector(62, -31.5, 0)),  # 10
    Part.LineSegment(Vector(62, -31.5, 0), Vector(70, -31.5, 0)),  # 11
    Part.LineSegment(Vector(70, -31.5, 0), Vector(70, -28.5, 0)),  # 12
    Part.LineSegment(Vector(70, -28.5, 0), Vector(62, -28.5, 0)),  # 13
    Part.LineSegment(Vector(62, -28.5, 0), Vector(62, -26.5, 0)),  # 14
    Part.LineSegment(Vector(62, -26.5, 0), Vector(57, -26.5, 0)),  # 15
], False)
sketch15.addConstraint([
    Sketcher.Constraint("Coincident", 0, 2, 1, 1),
    Sketcher.Constraint("Coincident", 1, 2, 2, 1),
    Sketcher.Constraint("Coincident", 2, 2, 3, 1),
    Sketcher.Constraint("Coincident", 3, 2, 4, 1),
    Sketcher.Constraint("Coincident", 4, 2, 5, 1),
    Sketcher.Constraint("Coincident", 5, 2, 6, 1),
    Sketcher.Constraint("Coincident", 6, 2, 7, 1),
    Sketcher.Constraint("Coincident", 7, 2, 0, 1),
    Sketcher.Constraint("Coincident", 8, 2, 9, 1),
    Sketcher.Constraint("Coincident", 9, 2, 10, 1),
    Sketcher.Constraint("Coincident", 10, 2, 11, 1),
    Sketcher.Constraint("Coincident", 11, 2, 12, 1),
    Sketcher.Constraint("Coincident", 12, 2, 13, 1),
    Sketcher.Constraint("Coincident", 13, 2, 14, 1),
    Sketcher.Constraint("Coincident", 14, 2, 15, 1),
    Sketcher.Constraint("Coincident", 15, 2, 8, 1),
    Sketcher.Constraint("Horizontal", 0),
    Sketcher.Constraint("Vertical", 1),
    Sketcher.Constraint("Horizontal", 2),
    Sketcher.Constraint("Vertical", 3),
    Sketcher.Constraint("Horizontal", 4),
    Sketcher.Constraint("Vertical", 5),
    Sketcher.Constraint("Horizontal", 6),
    Sketcher.Constraint("Vertical", 7),
    Sketcher.Constraint("Vertical", 8),
    Sketcher.Constraint("Horizontal", 9),
    Sketcher.Constraint("Vertical", 10),
    Sketcher.Constraint("Horizontal", 11),
    Sketcher.Constraint("Vertical", 12),
    Sketcher.Constraint("Horizontal", 13),
    Sketcher.Constraint("Vertical", 14),
    Sketcher.Constraint("Horizontal", 15),
    Sketcher.Constraint("PointOnObject", 0, 2, -2),
    Sketcher.Constraint("Horizontal", 4, 2, 8, 2),
    Sketcher.Constraint("Horizontal", 2, 2, 10, 2),
    Sketcher.Constraint("Horizontal", 7, 2, 12, 2),
    Sketcher.Constraint("Horizontal", 6, 2, 14, 2),
    Sketcher.Constraint("Vertical", 3, 2, 6, 2),
    Sketcher.Constraint("Vertical", 10, 2, 13, 2),
    Sketcher.Constraint("Equal", 6, 9),
    Sketcher.Constraint("Equal", 2, 11),
    Sketcher.Constraint("Equal", 3, 7),
    Sketcher.Constraint("DistanceX", 0, 2, 0, 1, 8.0),
    Sketcher.Constraint("DistanceX", 4, 1, 4, 2, 5.0),
    Sketcher.Constraint("DistanceY", 1, 2, 1, 1, 3.0),
    Sketcher.Constraint("DistanceY", 3, 2, 3, 1, 2.0),
    Sketcher.Constraint("DistanceX", -1, 1, 8, 2, 57.0),
    Sketcher.Constraint("DistanceY", 0, 2, -1, 1, 28.5),
])
pocket6 = body.newObject("PartDesign::Pocket", "Pocket005")
pocket6.Profile = sketch15
pocket6.Length = 5

doc.recompute()
